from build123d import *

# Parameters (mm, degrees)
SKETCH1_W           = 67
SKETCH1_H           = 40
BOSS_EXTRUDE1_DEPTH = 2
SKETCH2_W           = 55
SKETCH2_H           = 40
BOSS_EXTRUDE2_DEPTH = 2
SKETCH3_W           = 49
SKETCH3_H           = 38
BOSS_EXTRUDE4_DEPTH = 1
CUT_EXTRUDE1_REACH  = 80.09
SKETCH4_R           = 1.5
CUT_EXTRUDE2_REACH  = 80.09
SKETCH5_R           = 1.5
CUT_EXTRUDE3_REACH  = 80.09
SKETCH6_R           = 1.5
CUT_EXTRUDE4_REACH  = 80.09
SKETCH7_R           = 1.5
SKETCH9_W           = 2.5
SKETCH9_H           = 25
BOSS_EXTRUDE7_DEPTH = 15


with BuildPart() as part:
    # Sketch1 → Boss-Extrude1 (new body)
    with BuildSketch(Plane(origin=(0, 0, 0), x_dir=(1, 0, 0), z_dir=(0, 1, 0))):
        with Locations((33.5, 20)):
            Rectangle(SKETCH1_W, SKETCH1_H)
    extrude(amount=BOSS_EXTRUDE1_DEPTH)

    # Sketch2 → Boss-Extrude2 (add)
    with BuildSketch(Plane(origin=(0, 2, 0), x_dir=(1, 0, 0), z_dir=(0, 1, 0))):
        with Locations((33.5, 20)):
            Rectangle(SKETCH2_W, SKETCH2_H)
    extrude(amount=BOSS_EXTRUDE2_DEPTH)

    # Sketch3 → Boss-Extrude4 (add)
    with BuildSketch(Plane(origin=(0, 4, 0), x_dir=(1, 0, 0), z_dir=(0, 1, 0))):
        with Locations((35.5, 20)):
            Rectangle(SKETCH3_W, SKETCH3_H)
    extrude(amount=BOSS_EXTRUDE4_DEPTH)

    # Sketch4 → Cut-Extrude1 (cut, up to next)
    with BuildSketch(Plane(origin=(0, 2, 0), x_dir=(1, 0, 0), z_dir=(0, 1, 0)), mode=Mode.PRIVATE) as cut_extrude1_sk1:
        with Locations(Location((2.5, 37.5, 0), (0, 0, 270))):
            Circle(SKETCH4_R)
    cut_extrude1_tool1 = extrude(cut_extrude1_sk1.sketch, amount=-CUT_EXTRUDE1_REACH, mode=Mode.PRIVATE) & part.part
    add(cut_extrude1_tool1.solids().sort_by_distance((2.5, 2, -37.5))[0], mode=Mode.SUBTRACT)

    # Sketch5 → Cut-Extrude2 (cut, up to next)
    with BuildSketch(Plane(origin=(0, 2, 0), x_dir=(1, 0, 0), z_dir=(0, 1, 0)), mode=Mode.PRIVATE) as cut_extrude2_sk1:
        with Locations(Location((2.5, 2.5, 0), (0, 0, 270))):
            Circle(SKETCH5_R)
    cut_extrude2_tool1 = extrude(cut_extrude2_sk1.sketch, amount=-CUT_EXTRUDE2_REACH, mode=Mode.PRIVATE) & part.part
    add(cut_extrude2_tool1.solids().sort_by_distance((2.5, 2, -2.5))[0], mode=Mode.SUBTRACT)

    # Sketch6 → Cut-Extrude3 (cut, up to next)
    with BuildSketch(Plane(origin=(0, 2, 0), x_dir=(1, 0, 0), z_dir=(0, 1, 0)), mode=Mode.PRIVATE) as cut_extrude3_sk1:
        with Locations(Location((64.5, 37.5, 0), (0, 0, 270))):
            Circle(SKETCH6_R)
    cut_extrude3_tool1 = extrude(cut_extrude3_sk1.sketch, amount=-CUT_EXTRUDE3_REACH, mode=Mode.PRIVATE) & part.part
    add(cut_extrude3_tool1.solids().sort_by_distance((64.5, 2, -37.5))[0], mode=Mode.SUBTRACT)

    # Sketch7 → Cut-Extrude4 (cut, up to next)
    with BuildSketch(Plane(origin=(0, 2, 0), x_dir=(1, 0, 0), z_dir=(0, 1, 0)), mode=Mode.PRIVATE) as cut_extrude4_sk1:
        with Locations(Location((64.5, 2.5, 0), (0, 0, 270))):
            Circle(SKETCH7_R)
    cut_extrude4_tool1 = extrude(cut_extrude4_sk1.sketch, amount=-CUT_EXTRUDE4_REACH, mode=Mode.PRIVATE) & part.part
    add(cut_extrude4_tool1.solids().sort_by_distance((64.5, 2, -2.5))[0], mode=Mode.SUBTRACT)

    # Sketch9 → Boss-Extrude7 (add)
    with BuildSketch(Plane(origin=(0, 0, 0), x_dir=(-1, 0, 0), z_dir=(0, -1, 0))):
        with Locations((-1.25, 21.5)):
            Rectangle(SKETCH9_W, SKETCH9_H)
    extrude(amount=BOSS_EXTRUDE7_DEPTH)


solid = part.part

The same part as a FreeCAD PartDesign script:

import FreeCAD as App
import Part
import Sketcher
from FreeCAD import Vector

doc = App.newDocument("Part")
body = doc.addObject("PartDesign::Body", "Body")

sketch1 = body.newObject("Sketcher::SketchObject", "Sketch")
sketch1.AttachmentSupport = (doc.getObject("XZ_Plane"), [""])
sketch1.MapMode = "FlatFace"
sketch1.addGeometry(Part.LineSegment(Vector(0, -40, 0), Vector(0, 0, 0)), False)
sketch1.addGeometry(Part.LineSegment(Vector(0, 0, 0), Vector(67, 0, 0)), False)
sketch1.addGeometry(Part.LineSegment(Vector(67, 0, 0), Vector(67, -40, 0)), False)
sketch1.addGeometry(Part.LineSegment(Vector(67, -40, 0), Vector(0, -40, 0)), False)
sketch1.addConstraint(Sketcher.Constraint("Coincident", 0, 2, 1, 1))
sketch1.addConstraint(Sketcher.Constraint("Coincident", 1, 2, 2, 1))
sketch1.addConstraint(Sketcher.Constraint("Coincident", 2, 2, 3, 1))
sketch1.addConstraint(Sketcher.Constraint("Coincident", 3, 2, 0, 1))
sketch1.addConstraint(Sketcher.Constraint("Vertical", 0))
sketch1.addConstraint(Sketcher.Constraint("Horizontal", 1))
sketch1.addConstraint(Sketcher.Constraint("Vertical", 2))
sketch1.addConstraint(Sketcher.Constraint("Horizontal", 3))
sketch1.addConstraint(Sketcher.Constraint("Coincident", 0, 2, -1, 1))
sketch1.addConstraint(Sketcher.Constraint("DistanceX", 1, 1, 1, 2, 67.0))
sketch1.addConstraint(Sketcher.Constraint("DistanceY", 0, 1, 0, 2, 40.0))
pad1 = body.newObject("PartDesign::Pad", "Pad")
pad1.Profile = sketch1
pad1.Length = 2
pad1.Reversed = True

sketch2 = body.newObject("Sketcher::SketchObject", "Sketch001")
sketch2.AttachmentSupport = (doc.getObject("XZ_Plane"), [""])
sketch2.MapMode = "FlatFace"
sketch2.AttachmentOffset = App.Placement(Vector(0, 0, -2), App.Rotation())
sketch2.addGeometry(Part.LineSegment(Vector(6, -40, 0), Vector(6, 0, 0)), False)
sketch2.addGeometry(Part.LineSegment(Vector(6, 0, 0), Vector(61, 0, 0)), False)
sketch2.addGeometry(Part.LineSegment(Vector(61, 0, 0), Vector(61, -40, 0)), False)
sketch2.addGeometry(Part.LineSegment(Vector(61, -40, 0), Vector(6, -40, 0)), False)
sketch2.addConstraint(Sketcher.Constraint("Coincident", 0, 2, 1, 1))
sketch2.addConstraint(Sketcher.Constraint("Coincident", 1, 2, 2, 1))
sketch2.addConstraint(Sketcher.Constraint("Coincident", 2, 2, 3, 1))
sketch2.addConstraint(Sketcher.Constraint("Coincident", 3, 2, 0, 1))
sketch2.addConstraint(Sketcher.Constraint("Vertical", 0))
sketch2.addConstraint(Sketcher.Constraint("Horizontal", 1))
sketch2.addConstraint(Sketcher.Constraint("Vertical", 2))
sketch2.addConstraint(Sketcher.Constraint("Horizontal", 3))
sketch2.addConstraint(Sketcher.Constraint("PointOnObject", 0, 2, -1))
sketch2.addConstraint(Sketcher.Constraint("DistanceX", 1, 1, 1, 2, 55.0))
sketch2.addConstraint(Sketcher.Constraint("DistanceY", 0, 1, 0, 2, 40.0))
sketch2.addConstraint(Sketcher.Constraint("DistanceX", -1, 1, 0, 2, 6.0))
pad2 = body.newObject("PartDesign::Pad", "Pad001")
pad2.Profile = sketch2
pad2.Length = 2
pad2.Reversed = True

sketch3 = body.newObject("Sketcher::SketchObject", "Sketch002")
sketch3.AttachmentSupport = (doc.getObject("XZ_Plane"), [""])
sketch3.MapMode = "FlatFace"
sketch3.AttachmentOffset = App.Placement(Vector(0, 0, -4), App.Rotation())
sketch3.addGeometry(Part.LineSegment(Vector(11, -39, 0), Vector(11, -1, 0)), False)
sketch3.addGeometry(Part.LineSegment(Vector(11, -1, 0), Vector(60, -1, 0)), False)
sketch3.addGeometry(Part.LineSegment(Vector(60, -1, 0), Vector(60, -39, 0)), False)
sketch3.addGeometry(Part.LineSegment(Vector(60, -39, 0), Vector(11, -39, 0)), False)
sketch3.addConstraint(Sketcher.Constraint("Coincident", 0, 2, 1, 1))
sketch3.addConstraint(Sketcher.Constraint("Coincident", 1, 2, 2, 1))
sketch3.addConstraint(Sketcher.Constraint("Coincident", 2, 2, 3, 1))
sketch3.addConstraint(Sketcher.Constraint("Coincident", 3, 2, 0, 1))
sketch3.addConstraint(Sketcher.Constraint("Vertical", 0))
sketch3.addConstraint(Sketcher.Constraint("Horizontal", 1))
sketch3.addConstraint(Sketcher.Constraint("Vertical", 2))
sketch3.addConstraint(Sketcher.Constraint("Horizontal", 3))
sketch3.addConstraint(Sketcher.Constraint("DistanceX", 1, 1, 1, 2, 49.0))
sketch3.addConstraint(Sketcher.Constraint("DistanceY", 0, 1, 0, 2, 38.0))
sketch3.addConstraint(Sketcher.Constraint("DistanceX", -1, 1, 0, 2, 11.0))
sketch3.addConstraint(Sketcher.Constraint("DistanceY", 0, 2, -1, 1, 1.0))
pad3 = body.newObject("PartDesign::Pad", "Pad002")
pad3.Profile = sketch3
pad3.Length = 1
pad3.Reversed = True

sketch4 = body.newObject("Sketcher::SketchObject", "Sketch003")
sketch4.AttachmentSupport = (doc.getObject("XZ_Plane"), [""])
sketch4.MapMode = "FlatFace"
sketch4.AttachmentOffset = App.Placement(Vector(0, 0, -2), App.Rotation())
sketch4.addGeometry(Part.Circle(Vector(2.5, -37.5, 0), Vector(0, 0, 1), 1.5), False)
sketch4.addConstraint(Sketcher.Constraint("Diameter", 0, 3.0))
sketch4.addConstraint(Sketcher.Constraint("DistanceX", -1, 1, 0, 3, 2.5))
sketch4.addConstraint(Sketcher.Constraint("DistanceY", 0, 3, -1, 1, 37.5))
pocket1 = body.newObject("PartDesign::Pocket", "Pocket")
pocket1.Profile = sketch4
pocket1.Type = "UpToFirst"
pocket1.Reversed = True

sketch5 = body.newObject("Sketcher::SketchObject", "Sketch004")
sketch5.AttachmentSupport = (doc.getObject("XZ_Plane"), [""])
sketch5.MapMode = "FlatFace"
sketch5.AttachmentOffset = App.Placement(Vector(0, 0, -2), App.Rotation())
sketch5.addGeometry(Part.Circle(Vector(2.5, -2.5, 0), Vector(0, 0, 1), 1.5), False)
sketch5.addConstraint(Sketcher.Constraint("Diameter", 0, 3.0))
sketch5.addConstraint(Sketcher.Constraint("DistanceX", -1, 1, 0, 3, 2.5))
sketch5.addConstraint(Sketcher.Constraint("DistanceY", 0, 3, -1, 1, 2.5))
pocket2 = body.newObject("PartDesign::Pocket", "Pocket001")
pocket2.Profile = sketch5
pocket2.Type = "UpToFirst"
pocket2.Reversed = True

sketch6 = body.newObject("Sketcher::SketchObject", "Sketch005")
sketch6.AttachmentSupport = (doc.getObject("XZ_Plane"), [""])
sketch6.MapMode = "FlatFace"
sketch6.AttachmentOffset = App.Placement(Vector(0, 0, -2), App.Rotation())
sketch6.addGeometry(Part.Circle(Vector(64.5, -37.5, 0), Vector(0, 0, 1), 1.5), False)
sketch6.addConstraint(Sketcher.Constraint("Diameter", 0, 3.0))
sketch6.addConstraint(Sketcher.Constraint("DistanceX", -1, 1, 0, 3, 64.5))
sketch6.addConstraint(Sketcher.Constraint("DistanceY", 0, 3, -1, 1, 37.5))
pocket3 = body.newObject("PartDesign::Pocket", "Pocket002")
pocket3.Profile = sketch6
pocket3.Type = "UpToFirst"
pocket3.Reversed = True

sketch7 = body.newObject("Sketcher::SketchObject", "Sketch006")
sketch7.AttachmentSupport = (doc.getObject("XZ_Plane"), [""])
sketch7.MapMode = "FlatFace"
sketch7.AttachmentOffset = App.Placement(Vector(0, 0, -2), App.Rotation())
sketch7.addGeometry(Part.Circle(Vector(64.5, -2.5, 0), Vector(0, 0, 1), 1.5), False)
sketch7.addConstraint(Sketcher.Constraint("Diameter", 0, 3.0))
sketch7.addConstraint(Sketcher.Constraint("DistanceX", -1, 1, 0, 3, 64.5))
sketch7.addConstraint(Sketcher.Constraint("DistanceY", 0, 3, -1, 1, 2.5))
pocket4 = body.newObject("PartDesign::Pocket", "Pocket003")
pocket4.Profile = sketch7
pocket4.Type = "UpToFirst"
pocket4.Reversed = True

sketch8 = body.newObject("Sketcher::SketchObject", "Sketch007")
sketch8.AttachmentSupport = (doc.getObject("XZ_Plane"), [""])
sketch8.MapMode = "FlatFace"
sketch8.addGeometry(Part.LineSegment(Vector(2.5, -34, 0), Vector(2.5, -9, 0)), False)
sketch8.addGeometry(Part.LineSegment(Vector(2.5, -9, 0), Vector(0, -9, 0)), False)
sketch8.addGeometry(Part.LineSegment(Vector(0, -9, 0), Vector(0, -34, 0)), False)
sketch8.addGeometry(Part.LineSegment(Vector(0, -34, 0), Vector(2.5, -34, 0)), False)
sketch8.addConstraint(Sketcher.Constraint("Coincident", 0, 2, 1, 1))
sketch8.addConstraint(Sketcher.Constraint("Coincident", 1, 2, 2, 1))
sketch8.addConstraint(Sketcher.Constraint("Coincident", 2, 2, 3, 1))
sketch8.addConstraint(Sketcher.Constraint("Coincident", 3, 2, 0, 1))
sketch8.addConstraint(Sketcher.Constraint("Vertical", 0))
sketch8.addConstraint(Sketcher.Constraint("Horizontal", 1))
sketch8.addConstraint(Sketcher.Constraint("Vertical", 2))
sketch8.addConstraint(Sketcher.Constraint("Horizontal", 3))
sketch8.addConstraint(Sketcher.Constraint("PointOnObject", 1, 2, -2))
sketch8.addConstraint(Sketcher.Constraint("DistanceY", 0, 1, 0, 2, 25.0))
sketch8.addConstraint(Sketcher.Constraint("DistanceX", 1, 2, 1, 1, 2.5))
sketch8.addConstraint(Sketcher.Constraint("DistanceY", 0, 2, -1, 1, 9.0))
pad4 = body.newObject("PartDesign::Pad", "Pad003")
pad4.Profile = sketch8
pad4.Length = 15

doc.recompute()
